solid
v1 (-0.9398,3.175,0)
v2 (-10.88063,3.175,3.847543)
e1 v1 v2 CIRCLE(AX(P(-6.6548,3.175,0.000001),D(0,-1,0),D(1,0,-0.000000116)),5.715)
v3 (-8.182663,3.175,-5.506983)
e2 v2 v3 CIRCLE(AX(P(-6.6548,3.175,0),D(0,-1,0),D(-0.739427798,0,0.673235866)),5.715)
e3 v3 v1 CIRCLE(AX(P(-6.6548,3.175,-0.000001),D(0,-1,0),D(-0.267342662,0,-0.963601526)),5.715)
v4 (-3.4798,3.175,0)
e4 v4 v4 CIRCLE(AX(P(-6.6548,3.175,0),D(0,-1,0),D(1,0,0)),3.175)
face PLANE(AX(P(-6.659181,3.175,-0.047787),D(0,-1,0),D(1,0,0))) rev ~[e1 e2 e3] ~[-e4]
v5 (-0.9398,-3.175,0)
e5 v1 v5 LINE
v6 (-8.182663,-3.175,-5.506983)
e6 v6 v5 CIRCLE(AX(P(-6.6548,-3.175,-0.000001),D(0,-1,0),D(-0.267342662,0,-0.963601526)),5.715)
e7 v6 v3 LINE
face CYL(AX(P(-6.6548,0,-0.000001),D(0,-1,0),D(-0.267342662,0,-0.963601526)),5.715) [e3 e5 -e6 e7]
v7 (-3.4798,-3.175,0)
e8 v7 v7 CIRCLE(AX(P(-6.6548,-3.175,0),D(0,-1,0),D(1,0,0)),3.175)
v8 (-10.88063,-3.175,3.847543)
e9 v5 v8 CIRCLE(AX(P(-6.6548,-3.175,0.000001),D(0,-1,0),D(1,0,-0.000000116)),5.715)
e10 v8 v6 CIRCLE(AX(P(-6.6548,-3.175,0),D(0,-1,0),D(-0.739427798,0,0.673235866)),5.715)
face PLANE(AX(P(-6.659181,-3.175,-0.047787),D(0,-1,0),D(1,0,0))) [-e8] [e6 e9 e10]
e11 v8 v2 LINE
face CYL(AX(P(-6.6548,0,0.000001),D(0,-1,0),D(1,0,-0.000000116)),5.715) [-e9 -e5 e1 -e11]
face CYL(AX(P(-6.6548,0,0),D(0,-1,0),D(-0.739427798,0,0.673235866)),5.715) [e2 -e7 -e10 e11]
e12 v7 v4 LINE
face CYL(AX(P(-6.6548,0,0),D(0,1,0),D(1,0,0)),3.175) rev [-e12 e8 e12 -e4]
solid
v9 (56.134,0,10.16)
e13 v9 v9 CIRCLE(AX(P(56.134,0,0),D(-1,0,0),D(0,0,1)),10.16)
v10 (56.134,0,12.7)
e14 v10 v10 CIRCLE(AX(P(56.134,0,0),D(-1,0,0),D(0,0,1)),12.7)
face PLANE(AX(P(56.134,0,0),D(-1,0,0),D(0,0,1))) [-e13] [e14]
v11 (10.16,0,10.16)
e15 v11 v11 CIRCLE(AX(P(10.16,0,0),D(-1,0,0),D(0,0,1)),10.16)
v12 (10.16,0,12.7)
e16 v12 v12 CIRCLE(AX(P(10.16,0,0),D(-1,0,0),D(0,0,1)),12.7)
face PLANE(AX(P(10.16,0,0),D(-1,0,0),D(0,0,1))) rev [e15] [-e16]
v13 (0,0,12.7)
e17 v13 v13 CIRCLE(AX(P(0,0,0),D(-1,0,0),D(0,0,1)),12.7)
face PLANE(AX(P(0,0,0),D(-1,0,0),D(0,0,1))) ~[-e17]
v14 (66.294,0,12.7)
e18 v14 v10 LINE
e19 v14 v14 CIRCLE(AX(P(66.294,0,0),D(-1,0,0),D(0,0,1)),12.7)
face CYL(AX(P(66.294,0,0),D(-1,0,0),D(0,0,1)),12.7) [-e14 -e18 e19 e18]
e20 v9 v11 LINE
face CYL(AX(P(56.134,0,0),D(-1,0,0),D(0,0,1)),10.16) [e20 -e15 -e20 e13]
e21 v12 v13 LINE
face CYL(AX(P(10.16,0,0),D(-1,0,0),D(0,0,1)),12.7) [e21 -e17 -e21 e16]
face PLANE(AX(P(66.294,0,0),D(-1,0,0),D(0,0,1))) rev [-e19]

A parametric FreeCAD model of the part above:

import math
import FreeCAD as App
import Part
import Sketcher
from FreeCAD import Vector
Q = App.Units.Quantity

doc = App.newDocument("Part")
body = doc.addObject("PartDesign::Body", "Body")

# Sketch on XZ plane
sketch1 = doc.addObject("Sketcher::SketchObject", "Sketch")
body.addObject(sketch1)
sketch1.AttachmentSupport = (doc.XZ_Plane, [""])
sketch1.MapMode = "FlatFace"
sketch1.addGeometry([
    Part.LineSegment(Vector(0, 12.7, 0), Vector(0, 0, 0)),  # 0
    Part.LineSegment(Vector(0, 0, 0), Vector(66.3, 0, 0)),  # 1
    Part.LineSegment(Vector(66.3, 0, 0), Vector(66.3, 12.7, 0)),  # 2
    Part.LineSegment(Vector(66.3, 12.7, 0), Vector(56.1, 12.7, 0)),  # 3
    Part.LineSegment(Vector(56.1, 12.7, 0), Vector(56.1, 10.2, 0)),  # 4
    Part.LineSegment(Vector(56.1, 10.2, 0), Vector(10.2, 10.2, 0)),  # 5
    Part.LineSegment(Vector(10.2, 10.2, 0), Vector(10.2, 12.7, 0)),  # 6
    Part.LineSegment(Vector(10.2, 12.7, 0), Vector(0, 12.7, 0)),  # 7
], False)
sketch1.addConstraint([
    Sketcher.Constraint("Coincident", 0, 2, 1, 1),
    Sketcher.Constraint("Coincident", 1, 2, 2, 1),
    Sketcher.Constraint("Coincident", 2, 2, 3, 1),
    Sketcher.Constraint("Coincident", 3, 2, 4, 1),
    Sketcher.Constraint("Coincident", 4, 2, 5, 1),
    Sketcher.Constraint("Coincident", 5, 2, 6, 1),
    Sketcher.Constraint("Coincident", 6, 2, 7, 1),
    Sketcher.Constraint("Coincident", 7, 2, 0, 1),
    Sketcher.Constraint("Vertical", 0),
    Sketcher.Constraint("Horizontal", 1),
    Sketcher.Constraint("Vertical", 2),
    Sketcher.Constraint("Horizontal", 3),
    Sketcher.Constraint("Vertical", 4),
    Sketcher.Constraint("Horizontal", 5),
    Sketcher.Constraint("Vertical", 6),
    Sketcher.Constraint("Horizontal", 7),
    Sketcher.Constraint("Coincident", 0, 2, -1, 1),
    Sketcher.Constraint("Horizontal", 3, 2, 6, 2),
    Sketcher.Constraint("Equal", 3, 7),
    Sketcher.Constraint("DistanceX", 3, 2, 3, 1, Q("0.4 in")),
    Sketcher.Constraint("DistanceY", 0, 2, 0, 1, Q("0.5 in")),
    Sketcher.Constraint("DistanceY", 4, 2, 4, 1, Q("0.1 in")),
    Sketcher.Constraint("DistanceX", 1, 1, 1, 2, Q("2.61 in")),
])
revolution = doc.addObject("PartDesign::Revolution", "Revolution")
body.addObject(revolution)
revolution.Profile = sketch1
revolution.ReferenceAxis = (sketch1, ["H_Axis"])
revolution.Angle = 360
body2 = doc.addObject("PartDesign::Body", "Body001")

# Sketch on XZ plane
sketch2 = doc.addObject("Sketcher::SketchObject", "Sketch001")
body2.addObject(sketch2)
sketch2.AttachmentSupport = (doc.getObject("XZ_Plane001"), [""])
sketch2.MapMode = "FlatFace"
sketch2.addGeometry([
    Part.ArcOfCircle(Part.Circle(Vector(-6.7, 0, 0), Vector(0, 0, 1), 5.7), math.radians(-106), math.radians(0)),
    Part.ArcOfCircle(Part.Circle(Vector(-6.7, 0, 0), Vector(0, 0, 1), 5.7), math.radians(0), math.radians(138)),
    Part.ArcOfCircle(Part.Circle(Vector(-6.7, 0, 0), Vector(0, 0, 1), 5.7), math.radians(138), math.radians(254)),
    Part.Circle(Vector(-6.7, 0, 0), Vector(0, 0, 1), 3.2),
], False)
sketch2.addConstraint([
    Sketcher.Constraint("Tangent", 0, 2, 1, 1),
    Sketcher.Constraint("Tangent", 1, 2, 2, 1),
    Sketcher.Constraint("Tangent", 2, 2, 0, 1),
    Sketcher.Constraint("Coincident", 3, 3, 0, 3),
    Sketcher.Constraint("PointOnObject", 0, 3, -1),
    Sketcher.Constraint("PointOnObject", 0, 2, -1),
    Sketcher.Constraint("Diameter", 3, Q("0.25 in")),
    Sketcher.Constraint("Radius", 0, Q("0.225 in")),
    Sketcher.Constraint("DistanceX", 0, 3, -1, 1, Q("0.262 in")),
    Sketcher.Constraint("DistanceX", 1, 2, -1, 1, Q("10.88063 mm")),
    Sketcher.Constraint("DistanceX", 2, 2, -1, 1, Q("8.182663 mm")),
])
pad1 = doc.addObject("PartDesign::Pad", "Pad")
body2.addObject(pad1)
pad1.Profile = sketch2
pad1.Length = Q("0.25 in")
pad1.Midplane = True

doc.recompute()
